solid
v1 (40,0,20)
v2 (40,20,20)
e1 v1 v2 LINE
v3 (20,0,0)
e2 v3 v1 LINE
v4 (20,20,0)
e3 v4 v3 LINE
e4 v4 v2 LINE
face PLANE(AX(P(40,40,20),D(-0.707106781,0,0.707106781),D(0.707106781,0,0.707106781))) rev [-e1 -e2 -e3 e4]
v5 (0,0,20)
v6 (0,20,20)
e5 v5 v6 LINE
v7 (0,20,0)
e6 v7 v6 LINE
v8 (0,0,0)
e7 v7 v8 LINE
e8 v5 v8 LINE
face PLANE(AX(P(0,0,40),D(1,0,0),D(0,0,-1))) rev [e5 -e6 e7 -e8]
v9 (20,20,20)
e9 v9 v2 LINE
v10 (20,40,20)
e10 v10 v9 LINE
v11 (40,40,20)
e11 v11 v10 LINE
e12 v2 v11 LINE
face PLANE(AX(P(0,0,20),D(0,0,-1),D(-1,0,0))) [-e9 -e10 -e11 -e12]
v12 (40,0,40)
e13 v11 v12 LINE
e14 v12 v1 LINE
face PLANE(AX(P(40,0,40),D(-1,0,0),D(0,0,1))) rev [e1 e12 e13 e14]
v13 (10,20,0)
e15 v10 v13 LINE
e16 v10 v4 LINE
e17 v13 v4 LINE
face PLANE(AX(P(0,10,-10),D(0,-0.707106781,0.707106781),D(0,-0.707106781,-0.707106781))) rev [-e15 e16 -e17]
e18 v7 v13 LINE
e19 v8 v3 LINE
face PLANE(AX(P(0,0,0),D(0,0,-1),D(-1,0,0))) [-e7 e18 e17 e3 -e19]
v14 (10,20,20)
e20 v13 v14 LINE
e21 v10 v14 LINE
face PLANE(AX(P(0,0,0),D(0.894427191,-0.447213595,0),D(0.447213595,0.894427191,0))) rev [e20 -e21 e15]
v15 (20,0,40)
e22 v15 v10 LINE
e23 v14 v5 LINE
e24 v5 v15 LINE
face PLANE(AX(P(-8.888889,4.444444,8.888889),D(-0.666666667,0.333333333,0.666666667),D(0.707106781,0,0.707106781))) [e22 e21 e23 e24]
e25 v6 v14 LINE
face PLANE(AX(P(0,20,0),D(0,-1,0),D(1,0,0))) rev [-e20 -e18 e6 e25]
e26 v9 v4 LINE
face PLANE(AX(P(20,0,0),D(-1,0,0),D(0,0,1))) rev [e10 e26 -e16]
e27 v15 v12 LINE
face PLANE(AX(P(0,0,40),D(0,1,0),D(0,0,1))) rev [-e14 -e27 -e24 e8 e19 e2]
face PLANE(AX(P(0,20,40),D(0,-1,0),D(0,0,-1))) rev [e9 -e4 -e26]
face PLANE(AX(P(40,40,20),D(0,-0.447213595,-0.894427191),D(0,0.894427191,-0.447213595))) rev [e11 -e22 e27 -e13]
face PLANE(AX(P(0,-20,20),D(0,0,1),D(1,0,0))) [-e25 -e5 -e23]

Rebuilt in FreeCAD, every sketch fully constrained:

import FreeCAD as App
import Part
import Sketcher

doc = App.newDocument("Part")
body = doc.addObject("PartDesign::Body", "Body")

# Sketch on XY plane
sketch1 = body.newObject("Sketcher::SketchObject", "Sketch")
sketch1.AttachmentSupport = (doc.getObject("XY_Plane"), [""])
sketch1.MapMode = "FlatFace"
sketch1.addGeometry([
    Part.LineSegment(App.Vector(0, 20, 0), App.Vector(0, 0, 0)),
    Part.LineSegment(App.Vector(0, 0, 0), App.Vector(40, 0, 0)),
    Part.LineSegment(App.Vector(40, 0, 0), App.Vector(40, 20, 0)),
    Part.LineSegment(App.Vector(40, 20, 0), App.Vector(0, 20, 0)),
], False)
sketch1.addConstraint([
    Sketcher.Constraint("Coincident", 0, 2, 1, 1),
    Sketcher.Constraint("Coincident", 1, 2, 2, 1),
    Sketcher.Constraint("Coincident", 2, 2, 3, 1),
    Sketcher.Constraint("Coincident", 3, 2, 0, 1),
    Sketcher.Constraint("Vertical", 0),
    Sketcher.Constraint("Horizontal", 1),
    Sketcher.Constraint("Vertical", 2),
    Sketcher.Constraint("Horizontal", 3),
    Sketcher.Constraint("Coincident", 0, 2, -1, 1),
    Sketcher.Constraint("DistanceX", 1, 1, 1, 2, 40.0),
    Sketcher.Constraint("DistanceY", 0, 2, 0, 1, 20.0),
])
pad1 = body.newObject("PartDesign::Pad", "Pad")
pad1.Profile = sketch1
pad1.Length = 40

# Sketch on XZ plane
sketch2 = body.newObject("Sketcher::SketchObject", "Sketch001")
sketch2.AttachmentSupport = (doc.getObject("XZ_Plane"), [""])
sketch2.MapMode = "FlatFace"
sketch2.AttachmentOffset = App.Placement(App.Vector(0, 0, -20), App.Rotation())
sketch2.addGeometry([
    Part.LineSegment(App.Vector(20, 40, 0), App.Vector(0, 20, 0)),
    Part.LineSegment(App.Vector(0, 20, 0), App.Vector(0, 40, 0)),
    Part.LineSegment(App.Vector(0, 40, 0), App.Vector(20, 40, 0)),
], False)
sketch2.addConstraint([
    Sketcher.Constraint("Coincident", 0, 2, 1, 1),
    Sketcher.Constraint("Coincident", 1, 2, 2, 1),
    Sketcher.Constraint("Coincident", 2, 2, 0, 1),
    Sketcher.Constraint("Vertical", 1),
    Sketcher.Constraint("Horizontal", 2),
    Sketcher.Constraint("PointOnObject", 0, 2, -2),
    Sketcher.Constraint("Equal", 2, 1),
    Sketcher.Constraint("DistanceX", 2, 1, 2, 2, 20.0),
    Sketcher.Constraint("DistanceY", -1, 1, 0, 2, 20.0),
])
pocket1 = body.newObject("PartDesign::Pocket", "Pocket")
pocket1.Profile = sketch2
pocket1.Length = 40
pocket1.Reversed = True

# Sketch on XZ plane
sketch3 = body.newObject("Sketcher::SketchObject", "Sketch002")
sketch3.AttachmentSupport = (doc.getObject("XZ_Plane"), [""])
sketch3.MapMode = "FlatFace"
sketch3.AttachmentOffset = App.Placement(App.Vector(0, 0, -20), App.Rotation())
sketch3.addGeometry([
    Part.LineSegment(App.Vector(20, 40, 0), App.Vector(20, 20, 0)),
    Part.LineSegment(App.Vector(20, 20, 0), App.Vector(0, 20, 0)),
    Part.LineSegment(App.Vector(0, 20, 0), App.Vector(20, 40, 0)),
], False)
sketch3.addConstraint([
    Sketcher.Constraint("Coincident", 0, 2, 1, 1),
    Sketcher.Constraint("Coincident", 1, 2, 2, 1),
    Sketcher.Constraint("Coincident", 2, 2, 0, 1),
    Sketcher.Constraint("Vertical", 0),
    Sketcher.Constraint("Horizontal", 1),
    Sketcher.Constraint("PointOnObject", 1, 2, -2),
    Sketcher.Constraint("Equal", 1, 0),
    Sketcher.Constraint("DistanceX", 1, 2, 1, 1, 20.0),
    Sketcher.Constraint("DistanceY", -1, 1, 0, 2, 20.0),
])
pocket2 = body.newObject("PartDesign::Pocket", "Pocket001")
pocket2.Profile = sketch3
pocket2.Length = 40
pocket2.Reversed = True

# Sketch on XZ plane
sketch4 = body.newObject("Sketcher::SketchObject", "Sketch003")
sketch4.AttachmentSupport = (doc.getObject("XZ_Plane"), [""])
sketch4.MapMode = "FlatFace"
sketch4.AttachmentOffset = App.Placement(App.Vector(0, 0, -20), App.Rotation())
sketch4.addGeometry([
    Part.LineSegment(App.Vector(0, 0, 0), App.Vector(0, 20, 0)),
    Part.LineSegment(App.Vector(0, 20, 0), App.Vector(40, 20, 0)),
    Part.LineSegment(App.Vector(40, 20, 0), App.Vector(20, 0, 0)),
    Part.LineSegment(App.Vector(20, 0, 0), App.Vector(0, 0, 0)),
], False)
sketch4.addConstraint([
    Sketcher.Constraint("Coincident", 0, 2, 1, 1),
    Sketcher.Constraint("Coincident", 1, 2, 2, 1),
    Sketcher.Constraint("Coincident", 2, 2, 3, 1),
    Sketcher.Constraint("Coincident", 3, 2, 0, 1),
    Sketcher.Constraint("Vertical", 0),
    Sketcher.Constraint("Horizontal", 1),
    Sketcher.Constraint("Horizontal", 3),
    Sketcher.Constraint("Coincident", 3, 2, -1, 1),
    Sketcher.Constraint("Equal", 3, 0),
    Sketcher.Constraint("DistanceX", 1, 1, 1, 2, 40.0),
    Sketcher.Constraint("DistanceX", 3, 2, 3, 1, 20.0),
])
pad2 = body.newObject("PartDesign::Pad", "Pad001")
pad2.Profile = sketch4
pad2.Length = 20
pad2.Reversed = True

# Sketch on an angled plane
sketch5 = body.newObject("Sketcher::SketchObject", "Sketch004")
sketch5.Placement = App.Placement(App.Vector(-8.888889, 4.444444, 8.888889), App.Rotation(App.Vector(0.745355992, 0.298142397, 0.596284794), App.Vector(0, 0.894427191, -0.447213595), App.Vector(-0.666666667, 0.333333333, 0.666666667), "ZXY"))
sketch5.addGeometry([
    Part.LineSegment(App.Vector(12, -9, 0), App.Vector(39, -18, 0)),
    Part.LineSegment(App.Vector(39, -18, 0), App.Vector(39, 27, 0)),
    Part.LineSegment(App.Vector(39, 27, 0), App.Vector(12, -9, 0)),
], False)
sketch5.addConstraint([
    Sketcher.Constraint("Coincident", 0, 2, 1, 1),
    Sketcher.Constraint("Coincident", 1, 2, 2, 1),
    Sketcher.Constraint("Coincident", 2, 2, 0, 1),
    Sketcher.Constraint("Vertical", 1),
    Sketcher.Constraint("DistanceY", 1, 1, 1, 2, 44.72136),
    Sketcher.Constraint("Distance", 0, 28.284271),
    Sketcher.Constraint("Distance", 2, 44.72136),
    Sketcher.Constraint("DistanceX", -1, 1, 0, 2, 38.758512),
    Sketcher.Constraint("DistanceY", 2, 2, -1, 1, 8.944272),
])
pad3 = body.newObject("PartDesign::Pad", "Pad002")
pad3.Profile = sketch5
pad3.Length = 20
pad3.Reversed = True

# Sketch on XZ plane
sketch6 = body.newObject("Sketcher::SketchObject", "Sketch005")
sketch6.AttachmentSupport = (doc.getObject("XZ_Plane"), [""])
sketch6.MapMode = "FlatFace"
sketch6.addGeometry([
    Part.LineSegment(App.Vector(0, 40, 0), App.Vector(0, 0, 0)),
    Part.LineSegment(App.Vector(0, 0, 0), App.Vector(40, 0, 0)),
    Part.LineSegment(App.Vector(40, 0, 0), App.Vector(40, 40, 0)),
    Part.LineSegment(App.Vector(40, 40, 0), App.Vector(0, 40, 0)),
], False)
sketch6.addConstraint([
    Sketcher.Constraint("Coincident", 0, 2, 1, 1),
    Sketcher.Constraint("Coincident", 1, 2, 2, 1),
    Sketcher.Constraint("Coincident", 2, 2, 3, 1),
    Sketcher.Constraint("Coincident", 3, 2, 0, 1),
    Sketcher.Constraint("Vertical", 0),
    Sketcher.Constraint("Horizontal", 1),
    Sketcher.Constraint("Vertical", 2),
    Sketcher.Constraint("Horizontal", 3),
    Sketcher.Constraint("Coincident", 0, 2, -1, 1),
    Sketcher.Constraint("Equal", 3, 0),
    Sketcher.Constraint("DistanceX", 1, 1, 1, 2, 40.0),
])
pocket3 = body.newObject("PartDesign::Pocket", "Pocket002")
pocket3.Profile = sketch6
pocket3.Length = 20
pocket3.Reversed = True

# Sketch on an angled plane
sketch7 = body.newObject("Sketcher::SketchObject", "Sketch006")
sketch7.Placement = App.Placement(App.Vector(10, 0, -10), App.Rotation(App.Vector(-0.707106781, 0, -0.707106781), App.Vector(0, 0.999999999, 0), App.Vector(0.707106781, 0, -0.707106781), "ZXY"))
sketch7.addGeometry([
    Part.LineSegment(App.Vector(-42, 40, 0), App.Vector(-42, 20, 0)),
    Part.LineSegment(App.Vector(-42, 20, 0), App.Vector(-14, 20, 0)),
    Part.LineSegment(App.Vector(-14, 20, 0), App.Vector(-14, 40, 0)),
    Part.LineSegment(App.Vector(-14, 40, 0), App.Vector(-42, 40, 0)),
], False)
sketch7.addConstraint([
    Sketcher.Constraint("Coincident", 0, 2, 1, 1),
    Sketcher.Constraint("Coincident", 1, 2, 2, 1),
    Sketcher.Constraint("Coincident", 2, 2, 3, 1),
    Sketcher.Constraint("Coincident", 3, 2, 0, 1),
    Sketcher.Constraint("Vertical", 0),
    Sketcher.Constraint("Horizontal", 1),
    Sketcher.Constraint("Vertical", 2),
    Sketcher.Constraint("Horizontal", 3),
    Sketcher.Constraint("DistanceY", 0, 2, 0, 1, 20.0),
    Sketcher.Constraint("DistanceY", -1, 1, 0, 2, 20.0),
    Sketcher.Constraint("DistanceX", 1, 1, 1, 2, 28.284271),
    Sketcher.Constraint("DistanceX", 0, 2, -1, 1, 42.426407),
])
pocket4 = body.newObject("PartDesign::Pocket", "Pocket003")
pocket4.Profile = sketch7
pocket4.Length = 20
pocket4.Reversed = True

# Sketch on YZ plane
sketch8 = body.newObject("Sketcher::SketchObject", "Sketch007")
sketch8.AttachmentSupport = (doc.getObject("YZ_Plane"), [""])
sketch8.MapMode = "FlatFace"
sketch8.AttachmentOffset = App.Placement(App.Vector(0, 0, 20), App.Rotation())
sketch8.addGeometry([
    Part.LineSegment(App.Vector(40, 40, 0), App.Vector(20, 40, 0)),
    Part.LineSegment(App.Vector(20, 40, 0), App.Vector(20, 20, 0)),
    Part.LineSegment(App.Vector(20, 20, 0), App.Vector(40, 20, 0)),
    Part.LineSegment(App.Vector(40, 20, 0), App.Vector(40, 40, 0)),
], False)
sketch8.addConstraint([
    Sketcher.Constraint("Coincident", 0, 2, 1, 1),
    Sketcher.Constraint("Coincident", 1, 2, 2, 1),
    Sketcher.Constraint("Coincident", 2, 2, 3, 1),
    Sketcher.Constraint("Coincident", 3, 2, 0, 1),
    Sketcher.Constraint("Horizontal", 0),
    Sketcher.Constraint("Vertical", 1),
    Sketcher.Constraint("Horizontal", 2),
    Sketcher.Constraint("Vertical", 3),
    Sketcher.Constraint("Equal", 2, 1),
    Sketcher.Constraint("DistanceX", 0, 2, 0, 1, 20.0),
    Sketcher.Constraint("DistanceX", -1, 1, 0, 2, 20.0),
    Sketcher.Constraint("DistanceY", -1, 1, 0, 2, 40.0),
])
pocket5 = body.newObject("PartDesign::Pocket", "Pocket004")
pocket5.Profile = sketch8
pocket5.Length = 20
pocket5.Reversed = True

# Sketch on XY plane
sketch9 = body.newObject("Sketcher::SketchObject", "Sketch008")
sketch9.AttachmentSupport = (doc.getObject("XY_Plane"), [""])
sketch9.MapMode = "FlatFace"
sketch9.AttachmentOffset = App.Placement(App.Vector(0, 0, 20), App.Rotation())
sketch9.addGeometry([
    Part.LineSegment(App.Vector(0, 40, 0), App.Vector(0, 20, 0)),
    Part.LineSegment(App.Vector(0, 20, 0), App.Vector(10, 20, 0)),
    Part.LineSegment(App.Vector(10, 20, 0), App.Vector(20, 40, 0)),
    Part.LineSegment(App.Vector(20, 40, 0), App.Vector(0, 40, 0)),
], False)
sketch9.addConstraint([
    Sketcher.Constraint("Coincident", 0, 2, 1, 1),
    Sketcher.Constraint("Coincident", 1, 2, 2, 1),
    Sketcher.Constraint("Coincident", 2, 2, 3, 1),
    Sketcher.Constraint("Coincident", 3, 2, 0, 1),
    Sketcher.Constraint("Vertical", 0),
    Sketcher.Constraint("Horizontal", 1),
    Sketcher.Constraint("Horizontal", 3),
    Sketcher.Constraint("PointOnObject", 0, 2, -2),
    Sketcher.Constraint("Equal", 3, 0),
    Sketcher.Constraint("DistanceX", 1, 1, 1, 2, 10.0),
    Sketcher.Constraint("DistanceX", 3, 2, 3, 1, 20.0),
    Sketcher.Constraint("DistanceY", -1, 1, 0, 2, 20.0),
])
pocket6 = body.newObject("PartDesign::Pocket", "Pocket005")
pocket6.Profile = sketch9
pocket6.Length = 20

# Sketch on XZ plane
sketch10 = body.newObject("Sketcher::SketchObject", "Sketch009")
sketch10.AttachmentSupport = (doc.getObject("XZ_Plane"), [""])
sketch10.MapMode = "FlatFace"
sketch10.AttachmentOffset = App.Placement(App.Vector(0, 0, -20), App.Rotation())
sketch10.addGeometry([
    Part.LineSegment(App.Vector(40, 20, 0), App.Vector(40, 0, 0)),
    Part.LineSegment(App.Vector(40, 0, 0), App.Vector(20, 0, 0)),
    Part.LineSegment(App.Vector(20, 0, 0), App.Vector(40, 20, 0)),
], False)
sketch10.addConstraint([
    Sketcher.Constraint("Coincident", 0, 2, 1, 1),
    Sketcher.Constraint("Coincident", 1, 2, 2, 1),
    Sketcher.Constraint("Coincident", 2, 2, 0, 1),
    Sketcher.Constraint("Vertical", 0),
    Sketcher.Constraint("Horizontal", 1),
    Sketcher.Constraint("PointOnObject", 0, 2, -1),
    Sketcher.Constraint("Equal", 1, 0),
    Sketcher.Constraint("DistanceX", 1, 2, 1, 1, 20.0),
    Sketcher.Constraint("DistanceX", -1, 1, 0, 2, 40.0),
])
pocket7 = body.newObject("PartDesign::Pocket", "Pocket006")
pocket7.Profile = sketch10
pocket7.Length = 20
pocket7.Reversed = True

# Sketch on XY plane
sketch11 = body.newObject("Sketcher::SketchObject", "Sketch010")
sketch11.AttachmentSupport = (doc.getObject("XY_Plane"), [""])
sketch11.MapMode = "FlatFace"
sketch11.AttachmentOffset = App.Placement(App.Vector(0, 0, 20), App.Rotation())
sketch11.addGeometry([
    Part.LineSegment(App.Vector(20, 40, 0), App.Vector(20, 20, 0)),
    Part.LineSegment(App.Vector(20, 20, 0), App.Vector(40, 20, 0)),
    Part.LineSegment(App.Vector(40, 20, 0), App.Vector(40, 40, 0)),
    Part.LineSegment(App.Vector(40, 40, 0), App.Vector(20, 40, 0)),
], False)
sketch11.addConstraint([
    Sketcher.Constraint("Coincident", 0, 2, 1, 1),
    Sketcher.Constraint("Coincident", 1, 2, 2, 1),
    Sketcher.Constraint("Coincident", 2, 2, 3, 1),
    Sketcher.Constraint("Coincident", 3, 2, 0, 1),
    Sketcher.Constraint("Vertical", 0),
    Sketcher.Constraint("Horizontal", 1),
    Sketcher.Constraint("Vertical", 2),
    Sketcher.Constraint("Horizontal", 3),
    Sketcher.Constraint("Equal", 3, 0),
    Sketcher.Constraint("DistanceX", 1, 1, 1, 2, 20.0),
    Sketcher.Constraint("DistanceX", -1, 1, 0, 2, 20.0),
    Sketcher.Constraint("DistanceY", -1, 1, 0, 2, 20.0),
])
pocket8 = body.newObject("PartDesign::Pocket", "Pocket007")
pocket8.Profile = sketch11
pocket8.Length = 20

# Sketch on XY plane
sketch12 = body.newObject("Sketcher::SketchObject", "Sketch011")
sketch12.AttachmentSupport = (doc.getObject("XY_Plane"), [""])
sketch12.MapMode = "FlatFace"
sketch12.AttachmentOffset = App.Placement(App.Vector(0, 0, 40), App.Rotation())
sketch12.addGeometry([
    Part.LineSegment(App.Vector(20, 40, 0), App.Vector(20, 20, 0)),
    Part.LineSegment(App.Vector(20, 20, 0), App.Vector(40, 20, 0)),
    Part.LineSegment(App.Vector(40, 20, 0), App.Vector(40, 40, 0)),
    Part.LineSegment(App.Vector(40, 40, 0), App.Vector(20, 40, 0)),
], False)
sketch12.addConstraint([
    Sketcher.Constraint("Coincident", 0, 2, 1, 1),
    Sketcher.Constraint("Coincident", 1, 2, 2, 1),
    Sketcher.Constraint("Coincident", 2, 2, 3, 1),
    Sketcher.Constraint("Coincident", 3, 2, 0, 1),
    Sketcher.Constraint("Vertical", 0),
    Sketcher.Constraint("Horizontal", 1),
    Sketcher.Constraint("Vertical", 2),
    Sketcher.Constraint("Horizontal", 3),
    Sketcher.Constraint("Equal", 3, 0),
    Sketcher.Constraint("DistanceX", 1, 1, 1, 2, 20.0),
    Sketcher.Constraint("DistanceX", -1, 1, 0, 2, 20.0),
    Sketcher.Constraint("DistanceY", -1, 1, 0, 2, 20.0),
])
pad4 = body.newObject("PartDesign::Pad", "Pad003")
pad4.Profile = sketch12
pad4.Length = 20
pad4.Reversed = True

# Sketch on YZ plane
sketch13 = body.newObject("Sketcher::SketchObject", "Sketch012")
sketch13.AttachmentSupport = (doc.getObject("YZ_Plane"), [""])
sketch13.MapMode = "FlatFace"
sketch13.AttachmentOffset = App.Placement(App.Vector(0, 0, 20), App.Rotation())
sketch13.addGeometry([
    Part.LineSegment(App.Vector(40, 20, 0), App.Vector(20, 0, 0)),
    Part.LineSegment(App.Vector(20, 0, 0), App.Vector(40, 0, 0)),
    Part.LineSegment(App.Vector(40, 0, 0), App.Vector(40, 20, 0)),
], False)
sketch13.addConstraint([
    Sketcher.Constraint("Coincident", 0, 2, 1, 1),
    Sketcher.Constraint("Coincident", 1, 2, 2, 1),
    Sketcher.Constraint("Coincident", 2, 2, 0, 1),
    Sketcher.Constraint("Horizontal", 1),
    Sketcher.Constraint("Vertical", 2),
    Sketcher.Constraint("PointOnObject", 0, 2, -1),
    Sketcher.Constraint("Equal", 1, 2),
    Sketcher.Constraint("DistanceX", 1, 1, 1, 2, 20.0),
    Sketcher.Constraint("DistanceX", -1, 1, 0, 2, 20.0),
])
pocket9 = body.newObject("PartDesign::Pocket", "Pocket008")
pocket9.Profile = sketch13
pocket9.Length = 20

# Sketch on YZ plane
sketch14 = body.newObject("Sketcher::SketchObject", "Sketch013")
sketch14.AttachmentSupport = (doc.getObject("YZ_Plane"), [""])
sketch14.MapMode = "FlatFace"
sketch14.AttachmentOffset = App.Placement(App.Vector(0, 0, 20), App.Rotation())
sketch14.addGeometry([
    Part.LineSegment(App.Vector(40, 20, 0), App.Vector(0, 40, 0)),
    Part.LineSegment(App.Vector(0, 40, 0), App.Vector(40, 40, 0)),
    Part.LineSegment(App.Vector(40, 40, 0), App.Vector(40, 20, 0)),
], False)
sketch14.addConstraint([
    Sketcher.Constraint("Coincident", 0, 2, 1, 1),
    Sketcher.Constraint("Coincident", 1, 2, 2, 1),
    Sketcher.Constraint("Coincident", 2, 2, 0, 1),
    Sketcher.Constraint("Horizontal", 1),
    Sketcher.Constraint("Vertical", 2),
    Sketcher.Constraint("PointOnObject", 0, 2, -2),
    Sketcher.Constraint("DistanceX", 1, 1, 1, 2, 40.0),
    Sketcher.Constraint("DistanceY", 2, 2, 2, 1, 20.0),
    Sketcher.Constraint("DistanceY", -1, 1, 0, 2, 40.0),
])
pocket10 = body.newObject("PartDesign::Pocket", "Pocket009")
pocket10.Profile = sketch14
pocket10.Length = 20
pocket10.Reversed = True

doc.recompute()
